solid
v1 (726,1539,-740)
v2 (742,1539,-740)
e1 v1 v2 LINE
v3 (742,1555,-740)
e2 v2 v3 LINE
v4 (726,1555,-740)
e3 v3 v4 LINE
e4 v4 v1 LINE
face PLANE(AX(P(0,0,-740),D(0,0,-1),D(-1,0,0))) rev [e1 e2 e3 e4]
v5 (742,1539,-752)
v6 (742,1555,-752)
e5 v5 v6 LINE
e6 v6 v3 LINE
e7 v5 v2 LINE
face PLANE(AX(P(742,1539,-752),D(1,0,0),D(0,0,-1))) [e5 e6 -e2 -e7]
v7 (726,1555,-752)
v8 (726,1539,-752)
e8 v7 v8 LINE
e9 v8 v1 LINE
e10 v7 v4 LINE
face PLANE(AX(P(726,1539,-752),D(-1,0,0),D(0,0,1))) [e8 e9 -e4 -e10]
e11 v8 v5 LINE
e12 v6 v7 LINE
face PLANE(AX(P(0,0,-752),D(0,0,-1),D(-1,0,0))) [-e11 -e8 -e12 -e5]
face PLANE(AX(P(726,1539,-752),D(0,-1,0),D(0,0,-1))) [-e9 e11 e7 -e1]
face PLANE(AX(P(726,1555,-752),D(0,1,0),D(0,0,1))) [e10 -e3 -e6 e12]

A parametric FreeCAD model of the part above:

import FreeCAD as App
import Part
import Sketcher
Q = App.Units.Quantity


def add_polygon(sketch, points):
    """Adds a closed chain of lines whose ends are joined by coincident constraints."""
    first, n = sketch.GeometryCount, len(points)
    for a, b in zip(points, points[1:] + points[:1]):
        sketch.addGeometry(Part.LineSegment(App.Vector(*a, 0), App.Vector(*b, 0)), False)
    for i in range(n):
        sketch.addConstraint(Sketcher.Constraint("Coincident", first + i, 2, first + (i + 1) % n, 1))

doc = App.newDocument("Part")
params = doc.addObject("Spreadsheet::Sheet", "Params")
for row, (alias, value) in enumerate([
    ("sketch1_width", "16 mm"),
    ("pad1_length", "12 mm"),
], start=1):
    params.set(f"A{row}", alias)
    params.set(f"B{row}", "=" + value)
    params.setAlias(f"B{row}", alias)

body = doc.addObject("PartDesign::Body", "Body")

sketch1 = doc.addObject("Sketcher::SketchObject", "Sketch")
body.addObject(sketch1)
sketch1.AttachmentSupport = (doc.XY_Plane, [""])
sketch1.MapMode = "FlatFace"
sketch1.AttachmentOffset = App.Placement(App.Vector(0, 0, -740), App.Rotation())
add_polygon(sketch1, [(726, 1555), (726, 1539), (742, 1539), (742, 1555)])
sketch1.addConstraint([
    Sketcher.Constraint("Vertical", 0),
    Sketcher.Constraint("Horizontal", 1),
    Sketcher.Constraint("Vertical", 2),
    Sketcher.Constraint("Horizontal", 3),
    Sketcher.Constraint("Equal", 3, 0),
    Sketcher.Constraint("DistanceX", 1, 1, 1, 2, Q("16 mm")),
    Sketcher.Constraint("DistanceX", -1, 1, 0, 2, Q("726 mm")),
    Sketcher.Constraint("DistanceY", -1, 1, 0, 2, Q("1539 mm")),
])
sketch1.setExpression("Constraints[9]", "Params.sketch1_width")
pad1 = doc.addObject("PartDesign::Pad", "Pad")
body.addObject(pad1)
pad1.Profile = sketch1
pad1.setExpression("Length", "Params.pad1_length")
pad1.Reversed = True

doc.recompute()
